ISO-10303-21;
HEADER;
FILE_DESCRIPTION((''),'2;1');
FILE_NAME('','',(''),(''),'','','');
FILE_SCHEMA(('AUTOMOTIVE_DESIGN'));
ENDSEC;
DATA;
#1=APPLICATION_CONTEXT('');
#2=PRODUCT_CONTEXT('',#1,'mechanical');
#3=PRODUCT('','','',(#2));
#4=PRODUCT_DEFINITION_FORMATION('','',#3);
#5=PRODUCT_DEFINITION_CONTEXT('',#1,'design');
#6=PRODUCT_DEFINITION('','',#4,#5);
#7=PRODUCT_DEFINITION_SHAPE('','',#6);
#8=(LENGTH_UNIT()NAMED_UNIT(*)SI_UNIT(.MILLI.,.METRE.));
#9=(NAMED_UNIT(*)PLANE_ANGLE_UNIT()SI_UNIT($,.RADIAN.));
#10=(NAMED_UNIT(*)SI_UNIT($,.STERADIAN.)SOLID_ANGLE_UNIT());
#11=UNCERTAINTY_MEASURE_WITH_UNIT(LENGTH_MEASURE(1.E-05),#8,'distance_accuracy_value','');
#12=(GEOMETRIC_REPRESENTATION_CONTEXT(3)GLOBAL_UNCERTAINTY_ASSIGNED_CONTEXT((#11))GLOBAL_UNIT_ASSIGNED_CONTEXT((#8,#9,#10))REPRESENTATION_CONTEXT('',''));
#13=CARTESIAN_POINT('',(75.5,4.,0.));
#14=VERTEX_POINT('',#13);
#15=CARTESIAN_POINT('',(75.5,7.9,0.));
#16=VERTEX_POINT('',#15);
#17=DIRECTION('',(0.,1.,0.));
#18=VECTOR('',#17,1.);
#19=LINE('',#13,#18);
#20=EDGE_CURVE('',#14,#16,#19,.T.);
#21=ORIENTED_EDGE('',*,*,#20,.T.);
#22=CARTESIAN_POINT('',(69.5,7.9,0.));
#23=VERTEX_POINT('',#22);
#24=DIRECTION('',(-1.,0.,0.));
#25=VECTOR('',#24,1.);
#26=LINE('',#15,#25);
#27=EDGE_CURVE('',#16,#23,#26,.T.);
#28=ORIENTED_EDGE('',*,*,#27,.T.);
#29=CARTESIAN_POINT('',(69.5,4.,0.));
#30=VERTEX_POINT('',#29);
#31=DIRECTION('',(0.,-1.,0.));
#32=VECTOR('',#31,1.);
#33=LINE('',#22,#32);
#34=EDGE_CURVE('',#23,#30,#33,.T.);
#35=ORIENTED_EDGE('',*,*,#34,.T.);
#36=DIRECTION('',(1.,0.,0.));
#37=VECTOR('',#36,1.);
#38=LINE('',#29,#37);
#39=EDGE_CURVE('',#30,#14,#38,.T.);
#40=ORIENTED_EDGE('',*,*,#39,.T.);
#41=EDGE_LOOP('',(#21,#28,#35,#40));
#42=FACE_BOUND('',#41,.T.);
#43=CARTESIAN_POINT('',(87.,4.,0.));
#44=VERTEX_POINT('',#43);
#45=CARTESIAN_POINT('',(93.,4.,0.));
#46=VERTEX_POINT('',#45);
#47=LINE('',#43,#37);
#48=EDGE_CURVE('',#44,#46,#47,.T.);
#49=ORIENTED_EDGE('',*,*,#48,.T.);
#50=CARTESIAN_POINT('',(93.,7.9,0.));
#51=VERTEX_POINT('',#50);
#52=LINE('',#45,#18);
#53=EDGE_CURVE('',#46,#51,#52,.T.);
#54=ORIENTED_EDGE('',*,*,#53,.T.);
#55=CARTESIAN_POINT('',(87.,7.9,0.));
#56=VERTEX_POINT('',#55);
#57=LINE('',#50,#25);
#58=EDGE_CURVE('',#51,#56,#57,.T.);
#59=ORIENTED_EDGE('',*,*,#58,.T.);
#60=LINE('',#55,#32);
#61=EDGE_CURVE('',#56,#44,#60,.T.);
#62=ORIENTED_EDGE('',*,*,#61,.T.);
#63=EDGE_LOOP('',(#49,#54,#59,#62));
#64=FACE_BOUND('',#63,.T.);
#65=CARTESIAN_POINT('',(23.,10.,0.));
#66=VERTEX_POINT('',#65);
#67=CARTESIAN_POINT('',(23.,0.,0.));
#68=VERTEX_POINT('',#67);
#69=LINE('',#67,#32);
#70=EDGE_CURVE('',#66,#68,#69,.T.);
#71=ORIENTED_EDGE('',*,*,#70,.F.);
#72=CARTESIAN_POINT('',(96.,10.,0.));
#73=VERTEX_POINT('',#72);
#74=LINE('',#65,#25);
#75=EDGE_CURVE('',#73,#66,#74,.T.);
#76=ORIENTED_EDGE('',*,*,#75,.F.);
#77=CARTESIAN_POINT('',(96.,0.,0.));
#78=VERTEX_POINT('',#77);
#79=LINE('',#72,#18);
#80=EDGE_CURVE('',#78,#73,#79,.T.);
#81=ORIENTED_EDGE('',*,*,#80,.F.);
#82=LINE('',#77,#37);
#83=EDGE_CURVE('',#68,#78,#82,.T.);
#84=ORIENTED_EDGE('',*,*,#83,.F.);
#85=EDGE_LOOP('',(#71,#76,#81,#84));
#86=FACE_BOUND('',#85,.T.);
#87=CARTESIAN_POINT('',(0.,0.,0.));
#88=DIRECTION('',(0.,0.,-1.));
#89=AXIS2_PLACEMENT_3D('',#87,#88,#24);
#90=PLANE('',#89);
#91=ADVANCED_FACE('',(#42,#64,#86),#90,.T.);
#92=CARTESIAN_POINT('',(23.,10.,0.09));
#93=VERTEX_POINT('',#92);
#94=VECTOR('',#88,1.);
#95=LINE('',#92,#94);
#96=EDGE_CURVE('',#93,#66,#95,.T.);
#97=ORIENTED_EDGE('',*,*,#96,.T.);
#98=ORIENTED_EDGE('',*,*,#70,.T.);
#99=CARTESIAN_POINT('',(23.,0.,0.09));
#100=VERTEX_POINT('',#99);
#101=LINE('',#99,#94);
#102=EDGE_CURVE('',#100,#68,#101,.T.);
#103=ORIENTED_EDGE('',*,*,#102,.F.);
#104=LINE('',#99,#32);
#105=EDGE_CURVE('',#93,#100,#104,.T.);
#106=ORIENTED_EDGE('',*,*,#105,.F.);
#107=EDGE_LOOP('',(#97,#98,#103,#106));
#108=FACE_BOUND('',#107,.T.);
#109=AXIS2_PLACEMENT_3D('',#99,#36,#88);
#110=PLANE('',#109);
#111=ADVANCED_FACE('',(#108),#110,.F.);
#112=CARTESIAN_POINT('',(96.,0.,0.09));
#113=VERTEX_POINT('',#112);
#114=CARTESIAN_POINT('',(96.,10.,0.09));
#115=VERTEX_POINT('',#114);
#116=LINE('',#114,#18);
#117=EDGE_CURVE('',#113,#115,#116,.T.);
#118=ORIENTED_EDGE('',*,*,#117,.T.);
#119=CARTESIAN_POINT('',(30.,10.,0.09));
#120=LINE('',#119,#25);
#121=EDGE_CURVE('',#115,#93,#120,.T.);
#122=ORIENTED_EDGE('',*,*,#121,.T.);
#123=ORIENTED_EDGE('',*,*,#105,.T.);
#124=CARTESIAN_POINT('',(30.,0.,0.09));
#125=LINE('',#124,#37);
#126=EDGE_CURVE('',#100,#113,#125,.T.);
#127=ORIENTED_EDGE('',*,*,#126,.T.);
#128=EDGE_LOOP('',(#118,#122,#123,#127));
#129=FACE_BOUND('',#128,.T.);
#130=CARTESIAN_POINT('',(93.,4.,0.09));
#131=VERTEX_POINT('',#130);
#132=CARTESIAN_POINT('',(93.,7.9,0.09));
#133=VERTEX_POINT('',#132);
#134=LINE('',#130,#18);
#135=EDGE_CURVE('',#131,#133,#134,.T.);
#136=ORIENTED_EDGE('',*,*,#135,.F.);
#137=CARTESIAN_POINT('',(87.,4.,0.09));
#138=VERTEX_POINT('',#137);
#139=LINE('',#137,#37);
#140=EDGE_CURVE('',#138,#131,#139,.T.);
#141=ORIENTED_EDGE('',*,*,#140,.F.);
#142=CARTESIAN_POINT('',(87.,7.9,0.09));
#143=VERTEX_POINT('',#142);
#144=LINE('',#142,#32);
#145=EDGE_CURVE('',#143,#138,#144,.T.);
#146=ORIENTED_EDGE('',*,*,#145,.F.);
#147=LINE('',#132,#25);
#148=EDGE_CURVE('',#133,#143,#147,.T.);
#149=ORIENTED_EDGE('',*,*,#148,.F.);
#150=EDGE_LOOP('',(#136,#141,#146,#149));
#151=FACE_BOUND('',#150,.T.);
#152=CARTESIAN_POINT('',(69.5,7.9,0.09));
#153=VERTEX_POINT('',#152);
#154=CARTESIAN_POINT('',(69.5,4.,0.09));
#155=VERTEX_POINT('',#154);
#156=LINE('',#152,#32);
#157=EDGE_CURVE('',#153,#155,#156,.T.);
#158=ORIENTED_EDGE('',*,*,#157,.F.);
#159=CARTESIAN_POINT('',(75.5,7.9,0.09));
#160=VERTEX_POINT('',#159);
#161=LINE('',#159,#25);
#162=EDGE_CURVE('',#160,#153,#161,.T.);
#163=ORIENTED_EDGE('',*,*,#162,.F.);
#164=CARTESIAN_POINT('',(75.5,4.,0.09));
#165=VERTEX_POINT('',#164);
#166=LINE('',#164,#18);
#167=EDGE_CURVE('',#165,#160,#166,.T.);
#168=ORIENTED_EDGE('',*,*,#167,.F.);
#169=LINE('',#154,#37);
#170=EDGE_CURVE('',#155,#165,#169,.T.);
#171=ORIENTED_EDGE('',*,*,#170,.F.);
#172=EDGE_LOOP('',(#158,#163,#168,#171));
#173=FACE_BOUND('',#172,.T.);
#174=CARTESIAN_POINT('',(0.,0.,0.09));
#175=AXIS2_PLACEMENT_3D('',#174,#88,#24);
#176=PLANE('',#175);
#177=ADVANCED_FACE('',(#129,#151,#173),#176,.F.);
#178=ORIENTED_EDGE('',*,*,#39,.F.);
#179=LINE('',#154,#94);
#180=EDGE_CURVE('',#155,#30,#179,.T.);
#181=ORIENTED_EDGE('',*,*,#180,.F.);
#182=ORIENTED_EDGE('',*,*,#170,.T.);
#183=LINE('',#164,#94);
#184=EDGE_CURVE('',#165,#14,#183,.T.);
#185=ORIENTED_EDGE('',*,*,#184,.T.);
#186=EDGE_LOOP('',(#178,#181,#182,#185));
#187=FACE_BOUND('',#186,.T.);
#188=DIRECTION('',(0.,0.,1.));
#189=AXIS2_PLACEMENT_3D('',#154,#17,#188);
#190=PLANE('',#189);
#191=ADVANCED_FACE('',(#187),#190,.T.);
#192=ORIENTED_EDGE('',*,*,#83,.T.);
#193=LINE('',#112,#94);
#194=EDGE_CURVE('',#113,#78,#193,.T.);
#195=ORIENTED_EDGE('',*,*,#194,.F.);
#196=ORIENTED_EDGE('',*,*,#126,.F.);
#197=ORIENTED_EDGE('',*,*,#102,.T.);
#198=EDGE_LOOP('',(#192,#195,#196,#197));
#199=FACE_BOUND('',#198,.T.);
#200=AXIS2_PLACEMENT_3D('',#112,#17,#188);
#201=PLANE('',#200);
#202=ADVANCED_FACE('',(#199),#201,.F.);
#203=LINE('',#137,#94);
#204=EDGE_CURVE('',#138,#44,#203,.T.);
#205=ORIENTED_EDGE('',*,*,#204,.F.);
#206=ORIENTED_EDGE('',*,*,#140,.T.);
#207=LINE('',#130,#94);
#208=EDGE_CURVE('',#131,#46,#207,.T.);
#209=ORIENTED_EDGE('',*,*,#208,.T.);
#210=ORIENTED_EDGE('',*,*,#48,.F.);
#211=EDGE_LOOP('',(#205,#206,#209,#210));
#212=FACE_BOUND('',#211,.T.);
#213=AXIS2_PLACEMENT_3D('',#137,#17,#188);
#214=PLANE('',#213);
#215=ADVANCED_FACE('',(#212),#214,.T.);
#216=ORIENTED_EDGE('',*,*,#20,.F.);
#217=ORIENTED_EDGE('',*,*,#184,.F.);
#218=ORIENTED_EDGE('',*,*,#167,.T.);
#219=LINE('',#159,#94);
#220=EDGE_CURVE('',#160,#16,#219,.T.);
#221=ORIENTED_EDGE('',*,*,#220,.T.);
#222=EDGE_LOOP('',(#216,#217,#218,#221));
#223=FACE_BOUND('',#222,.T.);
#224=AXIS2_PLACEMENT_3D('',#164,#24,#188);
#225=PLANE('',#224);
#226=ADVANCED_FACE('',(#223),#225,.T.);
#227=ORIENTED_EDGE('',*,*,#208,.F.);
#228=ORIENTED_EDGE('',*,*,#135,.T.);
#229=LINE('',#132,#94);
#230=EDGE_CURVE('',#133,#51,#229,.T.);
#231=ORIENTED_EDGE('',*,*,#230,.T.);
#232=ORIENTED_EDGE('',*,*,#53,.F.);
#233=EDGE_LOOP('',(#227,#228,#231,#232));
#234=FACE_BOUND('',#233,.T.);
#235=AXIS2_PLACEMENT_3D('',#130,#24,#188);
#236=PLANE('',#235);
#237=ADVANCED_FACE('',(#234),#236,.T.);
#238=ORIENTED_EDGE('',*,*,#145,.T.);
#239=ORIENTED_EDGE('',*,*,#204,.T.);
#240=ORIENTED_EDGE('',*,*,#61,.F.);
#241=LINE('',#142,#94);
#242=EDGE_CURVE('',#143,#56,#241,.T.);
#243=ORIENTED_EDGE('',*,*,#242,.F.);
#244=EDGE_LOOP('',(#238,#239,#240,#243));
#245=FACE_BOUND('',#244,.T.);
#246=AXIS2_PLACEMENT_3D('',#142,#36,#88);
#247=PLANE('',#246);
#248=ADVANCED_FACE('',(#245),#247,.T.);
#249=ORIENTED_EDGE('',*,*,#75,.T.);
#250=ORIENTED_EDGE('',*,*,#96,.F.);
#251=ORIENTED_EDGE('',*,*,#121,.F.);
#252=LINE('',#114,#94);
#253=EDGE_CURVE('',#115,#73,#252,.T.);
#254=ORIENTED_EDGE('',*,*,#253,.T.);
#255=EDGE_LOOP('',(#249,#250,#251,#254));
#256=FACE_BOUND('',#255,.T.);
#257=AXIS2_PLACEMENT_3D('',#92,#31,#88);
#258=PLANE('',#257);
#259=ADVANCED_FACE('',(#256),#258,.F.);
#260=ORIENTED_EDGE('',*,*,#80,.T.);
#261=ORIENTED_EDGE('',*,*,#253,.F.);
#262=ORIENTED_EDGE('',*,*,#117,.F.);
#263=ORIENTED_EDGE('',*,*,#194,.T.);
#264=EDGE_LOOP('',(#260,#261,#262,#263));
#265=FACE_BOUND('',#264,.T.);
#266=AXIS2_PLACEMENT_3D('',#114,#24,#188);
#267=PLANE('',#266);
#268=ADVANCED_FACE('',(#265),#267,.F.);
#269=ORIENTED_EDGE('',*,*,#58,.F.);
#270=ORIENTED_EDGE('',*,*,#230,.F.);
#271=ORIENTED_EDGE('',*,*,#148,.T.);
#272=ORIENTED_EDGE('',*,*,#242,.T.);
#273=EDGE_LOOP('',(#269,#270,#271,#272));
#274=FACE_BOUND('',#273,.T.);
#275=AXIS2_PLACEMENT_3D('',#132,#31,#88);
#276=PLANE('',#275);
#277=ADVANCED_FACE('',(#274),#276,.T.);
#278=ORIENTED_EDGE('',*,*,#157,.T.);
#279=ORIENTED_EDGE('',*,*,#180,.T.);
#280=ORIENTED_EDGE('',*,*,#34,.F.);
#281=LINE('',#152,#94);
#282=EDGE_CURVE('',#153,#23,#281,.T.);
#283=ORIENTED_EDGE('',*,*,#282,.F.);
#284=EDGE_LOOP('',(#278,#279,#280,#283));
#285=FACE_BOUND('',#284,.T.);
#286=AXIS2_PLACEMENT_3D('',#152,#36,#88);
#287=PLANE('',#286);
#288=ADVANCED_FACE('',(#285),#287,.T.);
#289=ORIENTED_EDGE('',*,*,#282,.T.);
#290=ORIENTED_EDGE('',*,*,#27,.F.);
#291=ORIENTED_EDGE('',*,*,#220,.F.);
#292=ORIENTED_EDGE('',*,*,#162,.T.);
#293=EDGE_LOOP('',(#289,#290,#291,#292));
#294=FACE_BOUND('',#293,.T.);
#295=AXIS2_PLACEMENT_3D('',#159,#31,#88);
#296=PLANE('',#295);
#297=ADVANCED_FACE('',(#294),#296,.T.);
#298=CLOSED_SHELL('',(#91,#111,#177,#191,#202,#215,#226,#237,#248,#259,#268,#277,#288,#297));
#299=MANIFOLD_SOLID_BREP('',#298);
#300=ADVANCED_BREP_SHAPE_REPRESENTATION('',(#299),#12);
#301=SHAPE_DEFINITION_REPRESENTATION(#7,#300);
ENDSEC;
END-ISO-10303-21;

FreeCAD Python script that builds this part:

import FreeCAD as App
import Part
import Sketcher

V = App.Vector
Q = App.Units.Quantity

doc = App.newDocument("Part")
body = doc.addObject("PartDesign::Body", "Body")

# Sketch on XY plane
sketch1 = body.newObject("Sketcher::SketchObject", "Sketch")
sketch1.AttachmentSupport = (doc.getObject("XY_Plane"), [""])
sketch1.MapMode = "FlatFace"
sketch1.addGeometry([
    Part.LineSegment(V(23, 0, 0), V(96, 0, 0)),  # 0
    Part.LineSegment(V(96, 0, 0), V(96, 10, 0)),  # 1
    Part.LineSegment(V(96, 10, 0), V(23, 10, 0)),  # 2
    Part.LineSegment(V(23, 10, 0), V(23, 0, 0)),  # 3
    Part.LineSegment(V(87, 4, 0), V(87, 7.9, 0)),  # 4
    Part.LineSegment(V(87, 7.9, 0), V(93, 7.9, 0)),  # 5
    Part.LineSegment(V(93, 7.9, 0), V(93, 4, 0)),  # 6
    Part.LineSegment(V(93, 4, 0), V(87, 4, 0)),  # 7
    Part.LineSegment(V(69.5, 4, 0), V(69.5, 7.9, 0)),  # 8
    Part.LineSegment(V(69.5, 7.9, 0), V(75.5, 7.9, 0)),  # 9
    Part.LineSegment(V(75.5, 7.9, 0), V(75.5, 4, 0)),  # 10
    Part.LineSegment(V(75.5, 4, 0), V(69.5, 4, 0)),  # 11
], False)
sketch1.addConstraint([
    Sketcher.Constraint("Coincident", 0, 2, 1, 1),
    Sketcher.Constraint("Coincident", 1, 2, 2, 1),
    Sketcher.Constraint("Coincident", 2, 2, 3, 1),
    Sketcher.Constraint("Coincident", 3, 2, 0, 1),
    Sketcher.Constraint("Coincident", 4, 2, 5, 1),
    Sketcher.Constraint("Coincident", 5, 2, 6, 1),
    Sketcher.Constraint("Coincident", 6, 2, 7, 1),
    Sketcher.Constraint("Coincident", 7, 2, 4, 1),
    Sketcher.Constraint("Coincident", 8, 2, 9, 1),
    Sketcher.Constraint("Coincident", 9, 2, 10, 1),
    Sketcher.Constraint("Coincident", 10, 2, 11, 1),
    Sketcher.Constraint("Coincident", 11, 2, 8, 1),
    Sketcher.Constraint("Horizontal", 0),
    Sketcher.Constraint("Vertical", 1),
    Sketcher.Constraint("Horizontal", 2),
    Sketcher.Constraint("Vertical", 3),
    Sketcher.Constraint("Vertical", 4),
    Sketcher.Constraint("Horizontal", 5),
    Sketcher.Constraint("Vertical", 6),
    Sketcher.Constraint("Horizontal", 7),
    Sketcher.Constraint("Vertical", 8),
    Sketcher.Constraint("Horizontal", 9),
    Sketcher.Constraint("Vertical", 10),
    Sketcher.Constraint("Horizontal", 11),
    Sketcher.Constraint("PointOnObject", 0, 2, -1),
    Sketcher.Constraint("Horizontal", 5, 2, 8, 2),
    Sketcher.Constraint("Horizontal", 7, 2, 10, 2),
    Sketcher.Constraint("Equal", 7, 9),
    Sketcher.Constraint("DistanceX", 0, 1, 0, 2, Q("73 mm")),
    Sketcher.Constraint("DistanceX", 5, 1, 5, 2, Q("6 mm")),
    Sketcher.Constraint("DistanceY", 1, 1, 1, 2, Q("10 mm")),
    Sketcher.Constraint("DistanceY", 4, 1, 4, 2, Q("3.9 mm")),
    Sketcher.Constraint("DistanceX", -1, 1, 0, 2, Q("96 mm")),
    Sketcher.Constraint("DistanceX", -1, 1, 4, 2, Q("87 mm")),
    Sketcher.Constraint("DistanceY", -1, 1, 6, 2, Q("4 mm")),
    Sketcher.Constraint("DistanceX", -1, 1, 8, 2, Q("69.5 mm")),
])
pad1 = body.newObject("PartDesign::Pad", "Pad")
pad1.Profile = sketch1
pad1.Length = 0.09

doc.recompute()
